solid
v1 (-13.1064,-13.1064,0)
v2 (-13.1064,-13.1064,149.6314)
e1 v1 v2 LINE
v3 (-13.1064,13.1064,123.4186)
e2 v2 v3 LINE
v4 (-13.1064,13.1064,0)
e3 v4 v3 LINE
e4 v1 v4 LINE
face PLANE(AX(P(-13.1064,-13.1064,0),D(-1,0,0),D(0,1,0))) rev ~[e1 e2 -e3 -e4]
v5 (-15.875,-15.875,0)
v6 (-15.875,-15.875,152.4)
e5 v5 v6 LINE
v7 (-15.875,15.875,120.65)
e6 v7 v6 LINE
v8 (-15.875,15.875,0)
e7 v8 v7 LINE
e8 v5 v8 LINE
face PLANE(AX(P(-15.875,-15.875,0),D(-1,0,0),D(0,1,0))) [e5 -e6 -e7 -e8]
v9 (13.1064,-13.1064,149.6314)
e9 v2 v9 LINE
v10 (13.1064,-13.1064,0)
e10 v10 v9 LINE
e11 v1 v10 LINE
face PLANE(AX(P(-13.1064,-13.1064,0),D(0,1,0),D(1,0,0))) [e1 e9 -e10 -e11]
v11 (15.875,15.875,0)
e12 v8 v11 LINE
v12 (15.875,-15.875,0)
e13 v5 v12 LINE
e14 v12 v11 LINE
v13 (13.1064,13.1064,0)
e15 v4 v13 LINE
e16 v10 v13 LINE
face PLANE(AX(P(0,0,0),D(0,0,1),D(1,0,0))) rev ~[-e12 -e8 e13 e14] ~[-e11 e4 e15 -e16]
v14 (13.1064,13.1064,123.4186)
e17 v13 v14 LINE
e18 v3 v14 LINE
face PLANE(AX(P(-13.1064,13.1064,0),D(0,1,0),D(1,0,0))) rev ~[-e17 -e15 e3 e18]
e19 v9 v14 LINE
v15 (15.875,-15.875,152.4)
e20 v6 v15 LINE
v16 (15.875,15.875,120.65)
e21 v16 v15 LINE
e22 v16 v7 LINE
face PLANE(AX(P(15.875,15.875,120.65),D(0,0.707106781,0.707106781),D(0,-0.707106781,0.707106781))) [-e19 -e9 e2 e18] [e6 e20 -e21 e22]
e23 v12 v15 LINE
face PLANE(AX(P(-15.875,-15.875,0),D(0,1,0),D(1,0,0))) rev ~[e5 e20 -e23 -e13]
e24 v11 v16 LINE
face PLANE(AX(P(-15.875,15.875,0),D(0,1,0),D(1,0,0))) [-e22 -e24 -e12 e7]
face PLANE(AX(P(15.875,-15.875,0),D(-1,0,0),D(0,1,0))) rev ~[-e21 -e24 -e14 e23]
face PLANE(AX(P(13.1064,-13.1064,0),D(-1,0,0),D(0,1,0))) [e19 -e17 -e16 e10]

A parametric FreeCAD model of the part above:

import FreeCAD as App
import Part
import Sketcher
Q = App.Units.Quantity


def add_polygon(sketch, points):
    """Adds a closed chain of lines whose ends are joined by coincident constraints."""
    first, n = sketch.GeometryCount, len(points)
    for a, b in zip(points, points[1:] + points[:1]):
        sketch.addGeometry(Part.LineSegment(App.Vector(*a, 0), App.Vector(*b, 0)), False)
    for i in range(n):
        sketch.addConstraint(Sketcher.Constraint("Coincident", first + i, 2, first + (i + 1) % n, 1))

doc = App.newDocument("Part")
body = doc.addObject("PartDesign::Body", "Body")

sketch1 = body.newObject("Sketcher::SketchObject", "Sketch")
sketch1.AttachmentSupport = (doc.getObject("XY_Plane"), [""])
sketch1.MapMode = "FlatFace"
add_polygon(sketch1, [(-16, 16), (-16, -16), (16, -16), (16, 16)])
add_polygon(sketch1, [(13, -13), (-13, -13), (-13, 13), (13, 13)])
sketch1.addConstraint(Sketcher.Constraint("Vertical", 0))
sketch1.addConstraint(Sketcher.Constraint("Horizontal", 1))
sketch1.addConstraint(Sketcher.Constraint("Vertical", 2))
sketch1.addConstraint(Sketcher.Constraint("Horizontal", 3))
sketch1.addConstraint(Sketcher.Constraint("Horizontal", 4))
sketch1.addConstraint(Sketcher.Constraint("Vertical", 5))
sketch1.addConstraint(Sketcher.Constraint("Horizontal", 6))
sketch1.addConstraint(Sketcher.Constraint("Vertical", 7))
sketch1.addConstraint(Sketcher.Constraint("Symmetric", 0, 2, 2, 2, -1, 1))
sketch1.addConstraint(Sketcher.Constraint("Symmetric", 4, 2, 6, 2, -1, 1))
sketch1.addConstraint(Sketcher.Constraint("Equal", 3, 0))
sketch1.addConstraint(Sketcher.Constraint("Equal", 6, 5))
sketch1.addConstraint(Sketcher.Constraint("DistanceX", 1, 1, 1, 2, Q("1.25 in")))
sketch1.addConstraint(Sketcher.Constraint("DistanceX", 4, 2, 4, 1, Q("1.032 in")))
pad1 = body.newObject("PartDesign::Pad", "Pad")
pad1.Profile = sketch1
pad1.Length = Q("6 in")

sketch2 = body.newObject("Sketcher::SketchObject", "Sketch001")
sketch2.AttachmentSupport = (doc.getObject("YZ_Plane"), [""])
sketch2.MapMode = "FlatFace"
sketch2.AttachmentOffset = App.Placement(App.Vector(0, 0, 0.625 * 25.4), App.Rotation())
add_polygon(sketch2, [(16, 152), (-16, 152), (16, 121)])
sketch2.addConstraint(Sketcher.Constraint("Horizontal", 0))
sketch2.addConstraint(Sketcher.Constraint("Vertical", 2))
sketch2.addConstraint(Sketcher.Constraint("Equal", 0, 2))
sketch2.addConstraint(Sketcher.Constraint("DistanceY", -1, 1, 0, 2, Q("6 in")))
sketch2.addConstraint(Sketcher.Constraint("DistanceX", 0, 2, 0, 1, Q("1.25 in")))
sketch2.addConstraint(Sketcher.Constraint("DistanceX", 0, 2, -1, 1, Q("0.625 in")))
pocket1 = body.newObject("PartDesign::Pocket", "Pocket")
pocket1.Profile = sketch2
pocket1.Length = Q("1.25 in")

doc.recompute()
